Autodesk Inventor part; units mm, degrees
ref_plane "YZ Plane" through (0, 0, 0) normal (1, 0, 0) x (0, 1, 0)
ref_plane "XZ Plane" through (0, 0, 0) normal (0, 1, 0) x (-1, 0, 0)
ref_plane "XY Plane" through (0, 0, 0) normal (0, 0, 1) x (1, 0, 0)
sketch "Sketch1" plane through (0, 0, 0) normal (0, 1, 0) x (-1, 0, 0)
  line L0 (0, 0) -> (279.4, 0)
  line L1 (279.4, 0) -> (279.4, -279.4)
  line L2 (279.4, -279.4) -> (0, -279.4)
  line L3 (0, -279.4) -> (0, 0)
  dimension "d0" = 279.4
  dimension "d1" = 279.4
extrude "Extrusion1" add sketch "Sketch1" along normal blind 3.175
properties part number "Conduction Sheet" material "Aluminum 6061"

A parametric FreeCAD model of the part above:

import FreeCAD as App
import Part
import Sketcher
from FreeCAD import Vector
Q = App.Units.Quantity


def add_polygon(sketch, points):
    """Adds a closed chain of lines whose ends are joined by coincident constraints."""
    first, n = sketch.GeometryCount, len(points)
    for a, b in zip(points, points[1:] + points[:1]):
        sketch.addGeometry(Part.LineSegment(App.Vector(*a, 0), App.Vector(*b, 0)), False)
    for i in range(n):
        sketch.addConstraint(Sketcher.Constraint("Coincident", first + i, 2, first + (i + 1) % n, 1))

doc = App.newDocument("Part")
params = doc.addObject("Spreadsheet::Sheet", "Params")
for row, (alias, value) in enumerate([
    ("sketch1_width", "11 in"),
    ("pad1_length", "0.125 in"),
], start=1):
    params.set(f"A{row}", alias)
    params.set(f"B{row}", "=" + value)
    params.setAlias(f"B{row}", alias)

body = doc.addObject("PartDesign::Body", "Body")

sketch1 = doc.addObject("Sketcher::SketchObject", "Sketch")
body.addObject(sketch1)
sketch1.AttachmentSupport = (doc.XZ_Plane, [""])
sketch1.MapMode = "FlatFace"
add_polygon(sketch1, [(-279, 0), (0, 0), (0, -279), (-279, -279)])
sketch1.addConstraint([
    Sketcher.Constraint("Horizontal", 0),
    Sketcher.Constraint("Vertical", 1),
    Sketcher.Constraint("Horizontal", 2),
    Sketcher.Constraint("Vertical", 3),
    Sketcher.Constraint("Coincident", 0, 2, -1, 1),
    Sketcher.Constraint("Equal", 2, 1),
    Sketcher.Constraint("DistanceX", 0, 1, 0, 2, Q("11 in")),
])
sketch1.setExpression("Constraints[10]", "Params.sketch1_width")
pad1 = doc.addObject("PartDesign::Pad", "Pad")
body.addObject(pad1)
pad1.Profile = sketch1
pad1.setExpression("Length", "Params.pad1_length")
pad1.Reversed = True

doc.recompute()
